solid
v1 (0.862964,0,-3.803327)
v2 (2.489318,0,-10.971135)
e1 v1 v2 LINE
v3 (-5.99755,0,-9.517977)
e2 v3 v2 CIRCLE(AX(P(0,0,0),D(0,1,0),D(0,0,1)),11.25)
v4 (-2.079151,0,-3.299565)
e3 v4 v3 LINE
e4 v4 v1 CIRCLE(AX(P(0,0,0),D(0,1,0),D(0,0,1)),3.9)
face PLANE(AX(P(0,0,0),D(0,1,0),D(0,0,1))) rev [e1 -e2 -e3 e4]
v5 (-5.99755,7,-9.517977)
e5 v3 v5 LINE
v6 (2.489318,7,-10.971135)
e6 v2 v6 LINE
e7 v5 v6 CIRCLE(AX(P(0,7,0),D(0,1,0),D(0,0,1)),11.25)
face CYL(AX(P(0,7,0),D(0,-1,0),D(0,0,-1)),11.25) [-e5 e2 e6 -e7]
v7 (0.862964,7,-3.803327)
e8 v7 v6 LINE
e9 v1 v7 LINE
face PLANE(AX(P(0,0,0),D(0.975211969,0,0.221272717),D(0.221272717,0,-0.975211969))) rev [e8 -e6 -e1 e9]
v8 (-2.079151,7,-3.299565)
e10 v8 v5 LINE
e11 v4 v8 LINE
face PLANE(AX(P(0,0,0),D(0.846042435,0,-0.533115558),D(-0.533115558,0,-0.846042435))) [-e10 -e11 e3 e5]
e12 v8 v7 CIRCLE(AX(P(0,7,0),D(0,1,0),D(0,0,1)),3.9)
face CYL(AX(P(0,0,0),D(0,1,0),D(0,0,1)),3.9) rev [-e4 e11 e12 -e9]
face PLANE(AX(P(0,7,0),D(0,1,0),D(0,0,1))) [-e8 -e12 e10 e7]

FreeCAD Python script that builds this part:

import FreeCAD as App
import Part
import Sketcher

V = App.Vector

doc = App.newDocument("Part")
body = doc.addObject("PartDesign::Body", "Body")

sketch1 = doc.addObject("Sketcher::SketchObject", "Sketch")
body.addObject(sketch1)
sketch1.AttachmentSupport = (doc.XZ_Plane, [""])
sketch1.MapMode = "FlatFace"
sketch1.addGeometry(Part.Circle(V(0, 0, 0), V(0, 0, 1), 11), False)
sketch1.addConstraint([
    Sketcher.Constraint("Coincident", 0, 3, -1, 1),
    Sketcher.Constraint("Diameter", 0, 22.5),
])
pad1 = doc.addObject("PartDesign::Pad", "Pad")
body.addObject(pad1)
pad1.Profile = sketch1
pad1.Length = 7
pad1.Reversed = True

sketch2 = doc.addObject("Sketcher::SketchObject", "Sketch001")
body.addObject(sketch2)
sketch2.AttachmentSupport = (doc.XZ_Plane, [""])
sketch2.MapMode = "FlatFace"
sketch2.AttachmentOffset = App.Placement(V(0, 0, -7), App.Rotation())
sketch2.addGeometry(Part.Circle(V(0, 0, 0), V(0, 0, 1), 3.9), False)
sketch2.addConstraint([
    Sketcher.Constraint("Coincident", 0, 3, -1, 1),
    Sketcher.Constraint("Diameter", 0, 7.8),
])
pocket1 = doc.addObject("PartDesign::Pocket", "Pocket")
body.addObject(pocket1)
pocket1.Profile = sketch2
pocket1.Length = 7
pocket1.Reversed = True

sketch3 = doc.addObject("Sketcher::SketchObject", "Sketch002")
body.addObject(sketch3)
sketch3.AttachmentSupport = (doc.XZ_Plane, [""])
sketch3.MapMode = "FlatFace"
sketch3.AttachmentOffset = App.Placement(V(0, 0, -7), App.Rotation())
sketch3.addGeometry([
    Part.LineSegment(V(-40, -64, 0), V(-6, -10, 0)),
    Part.LineSegment(V(-6, -10, 0), V(0, 0, 0)),
    Part.LineSegment(V(0, 0, 0), V(2, -11, 0)),
    Part.LineSegment(V(2, -11, 0), V(17, -73, 0)),
    Part.LineSegment(V(17, -73, 0), V(-5, -200, 0)),
    Part.LineSegment(V(-5, -200, 0), V(-62, -190, 0)),
    Part.LineSegment(V(-62, -190, 0), V(-40, -64, 0)),
], False)
sketch3.addConstraint([
    Sketcher.Constraint("Coincident", 0, 2, 1, 1),
    Sketcher.Constraint("Coincident", 1, 2, 2, 1),
    Sketcher.Constraint("Coincident", 2, 2, 3, 1),
    Sketcher.Constraint("Coincident", 3, 2, 4, 1),
    Sketcher.Constraint("Coincident", 4, 2, 5, 1),
    Sketcher.Constraint("Coincident", 5, 2, 6, 1),
    Sketcher.Constraint("Coincident", 6, 2, 0, 1),
    Sketcher.Constraint("Coincident", 1, 2, -1, 1),
    Sketcher.Constraint("Parallel", 0, 1),
    Sketcher.Constraint("Parallel", 2, 3),
    Sketcher.Constraint("Perpendicular", 4, 5),
    Sketcher.Constraint("Perpendicular", 5, 6),
    Sketcher.Constraint("Equal", 1, 2),
    Sketcher.Constraint("Equal", 0, 3),
    Sketcher.Constraint("Equal", 4, 6),
    Sketcher.Constraint("Distance", 1, 11.25),
    Sketcher.Constraint("DistanceY", 3, 2, -1, 1, 73.377002),
    Sketcher.Constraint("Distance", 4, 127.984211),
    Sketcher.Constraint("DistanceX", 0, 2, -1, 1, 5.99755),
    Sketcher.Constraint("DistanceX", -1, 1, 2, 2, 2.489318),
])
pocket2 = doc.addObject("PartDesign::Pocket", "Pocket001")
body.addObject(pocket2)
pocket2.Profile = sketch3
pocket2.Length = 7
pocket2.Reversed = True

doc.recompute()
